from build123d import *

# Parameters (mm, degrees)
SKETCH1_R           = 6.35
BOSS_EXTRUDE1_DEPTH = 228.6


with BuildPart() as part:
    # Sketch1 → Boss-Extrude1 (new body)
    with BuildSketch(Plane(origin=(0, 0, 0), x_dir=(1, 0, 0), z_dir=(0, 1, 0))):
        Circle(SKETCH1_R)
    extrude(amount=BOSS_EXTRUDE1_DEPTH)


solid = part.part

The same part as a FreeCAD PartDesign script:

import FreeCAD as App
import Part
import Sketcher
from FreeCAD import Vector
Q = App.Units.Quantity

doc = App.newDocument("Part")
body = doc.addObject("PartDesign::Body", "Body")

sketch1 = body.newObject("Sketcher::SketchObject", "Sketch")
sketch1.AttachmentSupport = (doc.getObject("XZ_Plane"), [""])
sketch1.MapMode = "FlatFace"
sketch1.addGeometry(Part.Circle(Vector(0, 0, 0), Vector(0, 0, 1), 6), False)
sketch1.addConstraint([
    Sketcher.Constraint("Coincident", 0, 3, -1, 1),
    Sketcher.Constraint("Diameter", 0, Q("0.5 in")),
])
pad1 = body.newObject("PartDesign::Pad", "Pad")
pad1.Profile = sketch1
pad1.Length = Q("9 in")
pad1.Reversed = True

doc.recompute()
